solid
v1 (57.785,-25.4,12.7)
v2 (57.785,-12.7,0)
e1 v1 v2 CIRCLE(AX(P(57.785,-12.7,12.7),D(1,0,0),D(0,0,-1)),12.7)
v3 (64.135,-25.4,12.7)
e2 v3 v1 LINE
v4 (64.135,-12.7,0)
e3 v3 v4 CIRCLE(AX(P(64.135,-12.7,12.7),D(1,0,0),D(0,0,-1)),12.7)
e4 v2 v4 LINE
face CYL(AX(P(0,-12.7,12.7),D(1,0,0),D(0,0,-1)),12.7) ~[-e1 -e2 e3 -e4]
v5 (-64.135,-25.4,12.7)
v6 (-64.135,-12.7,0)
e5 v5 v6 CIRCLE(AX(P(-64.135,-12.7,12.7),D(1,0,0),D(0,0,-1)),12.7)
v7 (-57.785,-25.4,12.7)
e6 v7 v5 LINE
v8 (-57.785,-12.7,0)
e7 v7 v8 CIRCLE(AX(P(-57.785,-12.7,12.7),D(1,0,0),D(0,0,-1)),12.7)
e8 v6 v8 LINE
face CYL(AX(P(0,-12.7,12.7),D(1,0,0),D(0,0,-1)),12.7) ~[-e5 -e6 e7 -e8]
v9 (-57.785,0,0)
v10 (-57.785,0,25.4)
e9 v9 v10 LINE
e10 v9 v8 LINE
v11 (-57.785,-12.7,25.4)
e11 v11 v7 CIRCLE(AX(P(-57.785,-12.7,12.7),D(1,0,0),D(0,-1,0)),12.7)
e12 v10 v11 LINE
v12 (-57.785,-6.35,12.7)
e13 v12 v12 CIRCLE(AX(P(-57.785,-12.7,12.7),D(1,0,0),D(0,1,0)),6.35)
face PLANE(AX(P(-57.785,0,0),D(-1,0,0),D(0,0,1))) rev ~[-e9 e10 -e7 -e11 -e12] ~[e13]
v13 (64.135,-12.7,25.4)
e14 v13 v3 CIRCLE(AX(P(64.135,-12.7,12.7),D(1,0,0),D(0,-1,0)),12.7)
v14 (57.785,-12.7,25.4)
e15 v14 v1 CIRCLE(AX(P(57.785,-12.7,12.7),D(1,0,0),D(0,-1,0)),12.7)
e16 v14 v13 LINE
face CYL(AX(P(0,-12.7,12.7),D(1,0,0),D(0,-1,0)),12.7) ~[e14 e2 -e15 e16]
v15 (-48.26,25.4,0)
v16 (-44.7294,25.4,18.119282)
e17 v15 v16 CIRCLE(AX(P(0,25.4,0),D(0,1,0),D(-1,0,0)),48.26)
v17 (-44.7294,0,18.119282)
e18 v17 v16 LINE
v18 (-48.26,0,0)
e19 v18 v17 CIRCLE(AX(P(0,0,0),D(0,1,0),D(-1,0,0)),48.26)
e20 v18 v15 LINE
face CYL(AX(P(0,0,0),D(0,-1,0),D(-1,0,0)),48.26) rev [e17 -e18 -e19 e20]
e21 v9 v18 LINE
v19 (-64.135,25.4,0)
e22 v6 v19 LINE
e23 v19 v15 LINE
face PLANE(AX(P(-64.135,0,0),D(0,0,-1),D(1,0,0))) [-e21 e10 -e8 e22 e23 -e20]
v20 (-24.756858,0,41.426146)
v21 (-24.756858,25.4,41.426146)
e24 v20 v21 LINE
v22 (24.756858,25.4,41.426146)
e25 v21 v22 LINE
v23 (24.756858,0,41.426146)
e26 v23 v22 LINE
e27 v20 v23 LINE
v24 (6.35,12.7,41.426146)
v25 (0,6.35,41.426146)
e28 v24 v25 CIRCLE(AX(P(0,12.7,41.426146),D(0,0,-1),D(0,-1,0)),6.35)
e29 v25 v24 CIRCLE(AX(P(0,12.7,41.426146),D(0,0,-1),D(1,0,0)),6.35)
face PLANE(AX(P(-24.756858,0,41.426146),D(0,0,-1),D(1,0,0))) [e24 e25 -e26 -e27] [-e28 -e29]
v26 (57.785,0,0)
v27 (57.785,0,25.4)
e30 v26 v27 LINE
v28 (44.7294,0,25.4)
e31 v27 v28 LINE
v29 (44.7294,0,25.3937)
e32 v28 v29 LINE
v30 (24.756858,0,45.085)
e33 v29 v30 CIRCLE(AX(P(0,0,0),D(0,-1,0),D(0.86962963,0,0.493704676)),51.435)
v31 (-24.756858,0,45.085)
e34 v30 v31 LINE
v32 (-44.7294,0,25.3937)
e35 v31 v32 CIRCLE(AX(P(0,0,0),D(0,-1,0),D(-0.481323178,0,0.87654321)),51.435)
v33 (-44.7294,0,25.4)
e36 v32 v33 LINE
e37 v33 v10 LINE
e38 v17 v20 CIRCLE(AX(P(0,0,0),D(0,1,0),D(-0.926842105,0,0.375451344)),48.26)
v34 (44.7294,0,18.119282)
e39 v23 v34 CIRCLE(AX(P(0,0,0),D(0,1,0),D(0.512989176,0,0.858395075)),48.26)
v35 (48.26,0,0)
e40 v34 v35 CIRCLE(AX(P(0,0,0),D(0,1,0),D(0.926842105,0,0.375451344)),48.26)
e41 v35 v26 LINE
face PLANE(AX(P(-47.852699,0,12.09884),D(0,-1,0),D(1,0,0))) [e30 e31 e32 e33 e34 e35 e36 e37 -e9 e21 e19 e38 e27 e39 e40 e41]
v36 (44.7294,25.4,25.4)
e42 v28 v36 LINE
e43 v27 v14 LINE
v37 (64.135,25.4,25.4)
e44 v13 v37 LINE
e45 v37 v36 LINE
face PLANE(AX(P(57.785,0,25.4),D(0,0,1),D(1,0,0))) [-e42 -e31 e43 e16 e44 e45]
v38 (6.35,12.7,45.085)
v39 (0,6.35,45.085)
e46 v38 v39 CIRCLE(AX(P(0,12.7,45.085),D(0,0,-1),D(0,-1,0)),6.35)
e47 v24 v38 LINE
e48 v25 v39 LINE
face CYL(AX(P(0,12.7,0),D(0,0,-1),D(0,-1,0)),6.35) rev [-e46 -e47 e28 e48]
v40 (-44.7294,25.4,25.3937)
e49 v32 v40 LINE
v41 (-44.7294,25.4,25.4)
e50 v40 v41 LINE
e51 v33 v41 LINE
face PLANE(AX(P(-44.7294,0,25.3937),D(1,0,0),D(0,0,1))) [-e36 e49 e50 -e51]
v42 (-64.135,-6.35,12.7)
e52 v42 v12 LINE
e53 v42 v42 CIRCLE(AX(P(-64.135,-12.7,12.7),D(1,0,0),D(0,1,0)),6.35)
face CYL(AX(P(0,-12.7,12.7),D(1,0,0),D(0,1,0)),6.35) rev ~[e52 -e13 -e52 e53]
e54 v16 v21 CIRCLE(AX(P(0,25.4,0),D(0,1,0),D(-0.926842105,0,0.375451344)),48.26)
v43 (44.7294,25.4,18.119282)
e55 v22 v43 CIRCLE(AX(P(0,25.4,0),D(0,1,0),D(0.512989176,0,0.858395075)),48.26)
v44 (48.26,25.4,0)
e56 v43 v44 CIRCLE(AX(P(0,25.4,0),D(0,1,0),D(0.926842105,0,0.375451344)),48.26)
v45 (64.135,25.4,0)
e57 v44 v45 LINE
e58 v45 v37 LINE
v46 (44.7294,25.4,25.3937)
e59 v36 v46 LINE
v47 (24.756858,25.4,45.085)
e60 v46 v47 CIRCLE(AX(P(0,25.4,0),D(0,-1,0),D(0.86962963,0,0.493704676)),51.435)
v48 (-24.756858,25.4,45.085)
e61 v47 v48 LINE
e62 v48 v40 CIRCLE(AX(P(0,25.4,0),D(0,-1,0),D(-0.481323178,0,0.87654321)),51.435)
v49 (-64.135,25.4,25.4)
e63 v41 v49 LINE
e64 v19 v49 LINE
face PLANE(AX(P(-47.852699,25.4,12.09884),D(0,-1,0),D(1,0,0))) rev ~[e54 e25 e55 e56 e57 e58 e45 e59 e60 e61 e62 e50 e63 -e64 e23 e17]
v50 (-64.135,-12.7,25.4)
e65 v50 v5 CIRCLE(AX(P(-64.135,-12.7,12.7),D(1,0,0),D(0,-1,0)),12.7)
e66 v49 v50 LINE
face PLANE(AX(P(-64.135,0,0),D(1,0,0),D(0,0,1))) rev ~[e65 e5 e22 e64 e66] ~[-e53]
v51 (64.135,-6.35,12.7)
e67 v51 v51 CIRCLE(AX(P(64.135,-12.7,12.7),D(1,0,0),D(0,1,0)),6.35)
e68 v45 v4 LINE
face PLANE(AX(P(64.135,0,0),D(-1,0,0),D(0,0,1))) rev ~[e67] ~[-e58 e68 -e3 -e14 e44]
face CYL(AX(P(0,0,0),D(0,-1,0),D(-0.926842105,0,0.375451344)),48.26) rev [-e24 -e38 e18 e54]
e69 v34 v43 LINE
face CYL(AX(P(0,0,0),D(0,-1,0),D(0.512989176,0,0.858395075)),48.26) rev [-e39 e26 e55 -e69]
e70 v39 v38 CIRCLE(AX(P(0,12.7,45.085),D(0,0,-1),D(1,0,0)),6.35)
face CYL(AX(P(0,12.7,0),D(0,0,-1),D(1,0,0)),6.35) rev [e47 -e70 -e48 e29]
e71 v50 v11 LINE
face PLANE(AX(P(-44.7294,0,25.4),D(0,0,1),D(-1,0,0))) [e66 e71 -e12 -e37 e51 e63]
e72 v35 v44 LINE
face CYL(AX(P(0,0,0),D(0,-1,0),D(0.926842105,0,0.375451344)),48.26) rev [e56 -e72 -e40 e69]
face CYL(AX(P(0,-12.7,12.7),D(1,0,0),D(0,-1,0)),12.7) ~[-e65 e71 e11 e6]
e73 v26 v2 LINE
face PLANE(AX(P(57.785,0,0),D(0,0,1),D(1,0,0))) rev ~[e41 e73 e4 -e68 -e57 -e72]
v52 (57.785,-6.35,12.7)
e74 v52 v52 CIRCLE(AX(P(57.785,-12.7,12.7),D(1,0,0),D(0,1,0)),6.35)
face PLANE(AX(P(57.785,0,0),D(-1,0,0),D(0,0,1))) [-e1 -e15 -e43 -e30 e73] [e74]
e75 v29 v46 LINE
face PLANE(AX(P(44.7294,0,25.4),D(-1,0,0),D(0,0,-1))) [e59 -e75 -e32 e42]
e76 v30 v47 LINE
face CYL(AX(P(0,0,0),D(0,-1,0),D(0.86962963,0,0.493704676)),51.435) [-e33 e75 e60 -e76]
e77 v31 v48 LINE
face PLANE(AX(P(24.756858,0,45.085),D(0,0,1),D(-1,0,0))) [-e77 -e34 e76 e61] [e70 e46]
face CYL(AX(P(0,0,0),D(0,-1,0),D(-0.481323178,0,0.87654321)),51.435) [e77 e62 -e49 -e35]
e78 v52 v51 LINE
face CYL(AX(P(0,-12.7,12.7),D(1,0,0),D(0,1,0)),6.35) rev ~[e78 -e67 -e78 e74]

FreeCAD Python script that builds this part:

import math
import FreeCAD as App
import Part
import Sketcher
from FreeCAD import Vector
Q = App.Units.Quantity


def add_polygon(sketch, points):
    """Adds a closed chain of lines whose ends are joined by coincident constraints."""
    first, n = sketch.GeometryCount, len(points)
    for a, b in zip(points, points[1:] + points[:1]):
        sketch.addGeometry(Part.LineSegment(App.Vector(*a, 0), App.Vector(*b, 0)), False)
    for i in range(n):
        sketch.addConstraint(Sketcher.Constraint("Coincident", first + i, 2, first + (i + 1) % n, 1))

doc = App.newDocument("Part")
params = doc.addObject("Spreadsheet::Sheet", "Params")
for row, (alias, value) in enumerate([
    ("sketch1_radius", "1.9 in"),
    ("sketch1_height", "1 in"),
    ("sketch1_radius2", "2.025 in"),
    ("sketch1_width", "0.764 in"),
    ("sketch1_width2", "0.625 in"),
    ("pad1_length", "1 in"),
    ("sketch2_height", "1 in"),
    ("sketch2_width", "0.25 in"),
    ("pad2_length", "1 in"),
    ("sketch3_diameter", "0.5 in"),
    ("pad3_length", "6 in"),
    ("sketch4_radius", "0.5 in"),
    ("pad4_length", "6 in"),
    ("sketch5_radius", "0.5 in"),
    ("pad5_length", "6 in"),
    ("sketch6_radius", "0.25 in"),
    ("pad6_length", "3 in"),
], start=1):
    params.set(f"A{row}", alias)
    params.set(f"B{row}", "=" + value)
    params.setAlias(f"B{row}", alias)

body = doc.addObject("PartDesign::Body", "Body")

sketch1 = doc.addObject("Sketcher::SketchObject", "Sketch")
body.addObject(sketch1)
sketch1.AttachmentSupport = (doc.XZ_Plane, [""])
sketch1.MapMode = "FlatFace"
sketch1.addGeometry([
    Part.LineSegment(Vector(-44.729, 25.394, 0), Vector(-44.729, 25.4, 0)),
    Part.LineSegment(Vector(-44.729, 25.4, 0), Vector(-64.135, 25.4, 0)),
    Part.LineSegment(Vector(-64.135, 25.4, 0), Vector(-64.135, 0, 0)),
    Part.LineSegment(Vector(-64.135, 0, 0), Vector(-48.26, 0, 0)),
    Part.ArcOfCircle(Part.Circle(Vector(0, 0, 0), Vector(0, 0, 1), 48.26), math.radians(158), math.radians(180)),
    Part.ArcOfCircle(Part.Circle(Vector(0, 0, 0), Vector(0, 0, 1), 48.26), math.radians(121), math.radians(158)),
    Part.LineSegment(Vector(-24.757, 41.426, 0), Vector(24.757, 41.426, 0)),
    Part.ArcOfCircle(Part.Circle(Vector(0, 0, 0), Vector(0, 0, 1), 48.26), math.radians(22), math.radians(59)),
    Part.ArcOfCircle(Part.Circle(Vector(0, 0, 0), Vector(0, 0, 1), 48.26), math.radians(0), math.radians(22)),
    Part.LineSegment(Vector(48.26, 0, 0), Vector(64.135, 0, 0)),
    Part.LineSegment(Vector(64.135, 0, 0), Vector(64.135, 25.4, 0)),
    Part.LineSegment(Vector(64.135, 25.4, 0), Vector(44.729, 25.4, 0)),
    Part.LineSegment(Vector(44.729, 25.4, 0), Vector(44.729, 25.394, 0)),
    Part.ArcOfCircle(Part.Circle(Vector(0, 0, 0), Vector(0, 0, 1), 51.435), math.radians(30), math.radians(61)),
    Part.LineSegment(Vector(24.757, 45.085, 0), Vector(-24.757, 45.085, 0)),
    Part.ArcOfCircle(Part.Circle(Vector(0, 0, 0), Vector(0, 0, 1), 51.435), math.radians(119), math.radians(150)),
], False)
sketch1.addConstraint([
    Sketcher.Constraint("Coincident", 0, 2, 1, 1),
    Sketcher.Constraint("Coincident", 1, 2, 2, 1),
    Sketcher.Constraint("Coincident", 2, 2, 3, 1),
    Sketcher.Constraint("Coincident", 3, 2, 4, 2),
    Sketcher.Constraint("Tangent", 4, 1, 5, 2),
    Sketcher.Constraint("Coincident", 5, 1, 6, 1),
    Sketcher.Constraint("Coincident", 6, 2, 7, 2),
    Sketcher.Constraint("Tangent", 7, 1, 8, 2),
    Sketcher.Constraint("Coincident", 8, 1, 9, 1),
    Sketcher.Constraint("Coincident", 9, 2, 10, 1),
    Sketcher.Constraint("Coincident", 10, 2, 11, 1),
    Sketcher.Constraint("Coincident", 11, 2, 12, 1),
    Sketcher.Constraint("Coincident", 12, 2, 13, 1),
    Sketcher.Constraint("Coincident", 13, 2, 14, 1),
    Sketcher.Constraint("Coincident", 14, 2, 15, 1),
    Sketcher.Constraint("Coincident", 15, 2, 0, 1),
    Sketcher.Constraint("Vertical", 0),
    Sketcher.Constraint("Horizontal", 1),
    Sketcher.Constraint("Vertical", 2),
    Sketcher.Constraint("Horizontal", 3),
    Sketcher.Constraint("Horizontal", 6),
    Sketcher.Constraint("Horizontal", 9),
    Sketcher.Constraint("Vertical", 10),
    Sketcher.Constraint("Horizontal", 11),
    Sketcher.Constraint("Vertical", 12),
    Sketcher.Constraint("Horizontal", 14),
    Sketcher.Constraint("Coincident", 4, 3, -1, 1),
    Sketcher.Constraint("Coincident", 7, 3, -1, 1),
    Sketcher.Constraint("Coincident", 13, 3, -1, 1),
    Sketcher.Constraint("Coincident", 15, 3, -1, 1),
    Sketcher.Constraint("Equal", 4, 5),
    Sketcher.Constraint("Equal", 5, 7),
    Sketcher.Constraint("Equal", 7, 8),
    Sketcher.Constraint("Equal", 13, 15),
    Sketcher.Constraint("Symmetric", 2, 2, 9, 2, -1, 1),
    Sketcher.Constraint("Symmetric", 0, 2, 11, 2, -2),
    Sketcher.Constraint("PointOnObject", 2, 2, -1),
    Sketcher.Constraint("Horizontal", 4, 1, 7, 1),
    Sketcher.Constraint("Vertical", 0, 2, 4, 1),
    Sketcher.Constraint("Vertical", 6, 2, 13, 2),
    Sketcher.Constraint("Radius", 4, Q("1.9 in")),
    Sketcher.Constraint("DistanceY", 2, 2, 2, 1, Q("1 in")),
    Sketcher.Constraint("Radius", 13, Q("2.025 in")),
    Sketcher.Constraint("DistanceX", 1, 2, 1, 1, Q("0.764 in")),
    Sketcher.Constraint("DistanceX", 3, 1, 3, 2, Q("0.625 in")),
    Sketcher.Constraint("DistanceY", -1, 1, 13, 2, Q("1.775 in")),
])
sketch1.setExpression("Constraints[40]", "Params.sketch1_radius")
sketch1.setExpression("Constraints[41]", "Params.sketch1_height")
sketch1.setExpression("Constraints[42]", "Params.sketch1_radius2")
sketch1.setExpression("Constraints[43]", "Params.sketch1_width")
sketch1.setExpression("Constraints[44]", "Params.sketch1_width2")
pad1 = doc.addObject("PartDesign::Pad", "Pad")
body.addObject(pad1)
pad1.Profile = sketch1
pad1.setExpression("Length", "Params.pad1_length")
pad1.Reversed = True

sketch2 = doc.addObject("Sketcher::SketchObject", "Sketch001")
body.addObject(sketch2)
sketch2.AttachmentSupport = (doc.XZ_Plane, [""])
sketch2.MapMode = "FlatFace"
add_polygon(sketch2, [(58, 25), (58, 0), (64, 0), (64, 25)])
add_polygon(sketch2, [(-64, 25), (-64, 0), (-58, 0), (-58, 25)])
sketch2.addConstraint([
    Sketcher.Constraint("Vertical", 0),
    Sketcher.Constraint("Horizontal", 1),
    Sketcher.Constraint("Vertical", 2),
    Sketcher.Constraint("Horizontal", 3),
    Sketcher.Constraint("Vertical", 4),
    Sketcher.Constraint("Horizontal", 5),
    Sketcher.Constraint("Vertical", 6),
    Sketcher.Constraint("Horizontal", 7),
    Sketcher.Constraint("Symmetric", 1, 2, 4, 2, -1, 1),
    Sketcher.Constraint("Symmetric", 0, 2, 5, 2, -2),
    Sketcher.Constraint("Horizontal", 3, 2, 6, 2),
    Sketcher.Constraint("DistanceY", 0, 2, 0, 1, Q("1 in")),
    Sketcher.Constraint("DistanceX", 1, 1, 1, 2, Q("0.25 in")),
    Sketcher.Constraint("DistanceX", 4, 2, 0, 2, Q("4.8 in")),
])
sketch2.setExpression("Constraints[19]", "Params.sketch2_height")
sketch2.setExpression("Constraints[20]", "Params.sketch2_width")
pad2 = doc.addObject("PartDesign::Pad", "Pad001")
body.addObject(pad2)
pad2.Profile = sketch2
pad2.setExpression("Length", "Params.pad2_length")
body2 = doc.addObject("PartDesign::Body", "Body001")

sketch3 = doc.addObject("Sketcher::SketchObject", "Sketch002")
body2.addObject(sketch3)
sketch3.AttachmentSupport = (doc.getObject("YZ_Plane001"), [""])
sketch3.MapMode = "FlatFace"
sketch3.addGeometry(Part.Circle(Vector(-13, 13, 0), Vector(0, 0, 1), 6), False)
sketch3.addConstraint([
    Sketcher.Constraint("Diameter", 0, Q("0.5 in")),
    Sketcher.Constraint("DistanceX", 0, 3, -1, 1, Q("0.5 in")),
    Sketcher.Constraint("DistanceY", -1, 1, 0, 3, Q("0.5 in")),
])
sketch3.setExpression("Constraints[0]", "Params.sketch3_diameter")
pad3 = doc.addObject("PartDesign::Pad", "Pad002")
body2.addObject(pad3)
pad3.Profile = sketch3
pad3.setExpression("Length", "Params.pad3_length")
pad3.Midplane = True
body3 = doc.addObject("PartDesign::Body", "Body002")

sketch4 = doc.addObject("Sketcher::SketchObject", "Sketch003")
body3.addObject(sketch4)
sketch4.AttachmentSupport = (doc.getObject("YZ_Plane002"), [""])
sketch4.MapMode = "FlatFace"
sketch4.addGeometry([
    Part.ArcOfCircle(Part.Circle(Vector(-13, 13, 0), Vector(0, 0, 1), 13), math.radians(90), math.radians(180)),
    Part.LineSegment(Vector(-13, 25, 0), Vector(-25, 25, 0)),
    Part.LineSegment(Vector(-25, 25, 0), Vector(-25, 13, 0)),
], False)
sketch4.addConstraint([
    Sketcher.Constraint("Tangent", 0, 1, 1, 1),
    Sketcher.Constraint("Coincident", 1, 2, 2, 1),
    Sketcher.Constraint("Tangent", 2, 2, 0, 2),
    Sketcher.Constraint("Horizontal", 1),
    Sketcher.Constraint("Vertical", 2),
    Sketcher.Constraint("Radius", 0, Q("0.5 in")),
    Sketcher.Constraint("DistanceY", -1, 1, 0, 1, Q("1 in")),
    Sketcher.Constraint("DistanceX", 1, 2, -1, 1, Q("1 in")),
])
sketch4.setExpression("Constraints[5]", "Params.sketch4_radius")
pad4 = doc.addObject("PartDesign::Pad", "Pad003")
body3.addObject(pad4)
pad4.Profile = sketch4
pad4.setExpression("Length", "Params.pad4_length")
pad4.Midplane = True
body4 = doc.addObject("PartDesign::Body", "Body003")

sketch5 = doc.addObject("Sketcher::SketchObject", "Sketch004")
body4.addObject(sketch5)
sketch5.AttachmentSupport = (doc.getObject("YZ_Plane003"), [""])
sketch5.MapMode = "FlatFace"
sketch5.addGeometry([
    Part.LineSegment(Vector(-25, 0, 0), Vector(-13, 0, 0)),
    Part.ArcOfCircle(Part.Circle(Vector(-13, 13, 0), Vector(0, 0, 1), 13), math.radians(180), math.radians(270)),
    Part.LineSegment(Vector(-25, 13, 0), Vector(-25, 0, 0)),
], False)
sketch5.addConstraint([
    Sketcher.Constraint("Tangent", 0, 2, 1, 2),
    Sketcher.Constraint("Tangent", 1, 1, 2, 1),
    Sketcher.Constraint("Coincident", 2, 2, 0, 1),
    Sketcher.Constraint("Horizontal", 0),
    Sketcher.Constraint("Vertical", 2),
    Sketcher.Constraint("PointOnObject", 0, 2, -1),
    Sketcher.Constraint("Radius", 1, Q("0.5 in")),
    Sketcher.Constraint("DistanceX", 1, 1, -1, 1, Q("1 in")),
])
sketch5.setExpression("Constraints[6]", "Params.sketch5_radius")
pad5 = doc.addObject("PartDesign::Pad", "Pad004")
body4.addObject(pad5)
pad5.Profile = sketch5
pad5.setExpression("Length", "Params.pad5_length")
pad5.Midplane = True
doc.recompute()

boolean = doc.addObject("PartDesign::Boolean", "Boolean")
body.addObject(boolean)
boolean.Type = "Cut"
boolean.addObjects([body3])
doc.recompute()

boolean2 = doc.addObject("PartDesign::Boolean", "Boolean001")
body.addObject(boolean2)
boolean2.Type = "Cut"
boolean2.addObjects([body2])
doc.recompute()

boolean3 = doc.addObject("PartDesign::Boolean", "Boolean002")
body.addObject(boolean3)
boolean3.Type = "Cut"
boolean3.addObjects([body4])
body5 = doc.addObject("PartDesign::Body", "Body004")

sketch6 = doc.addObject("Sketcher::SketchObject", "Sketch005")
body5.addObject(sketch6)
sketch6.AttachmentSupport = (doc.getObject("XY_Plane004"), [""])
sketch6.MapMode = "FlatFace"
sketch6.addGeometry([
    Part.ArcOfCircle(Part.Circle(Vector(0, 13, 0), Vector(0, 0, 1), 6), math.radians(-90), math.radians(0)),
    Part.ArcOfCircle(Part.Circle(Vector(0, 13, 0), Vector(0, 0, 1), 6), math.radians(0), math.radians(270)),
], False)
sketch6.addConstraint([
    Sketcher.Constraint("Tangent", 0, 1, 1, 2),
    Sketcher.Constraint("Coincident", 1, 1, 0, 2),
    Sketcher.Constraint("PointOnObject", 0, 3, -2),
    Sketcher.Constraint("PointOnObject", 0, 1, -2),
    Sketcher.Constraint("Horizontal", 0, 3, 1, 1),
    Sketcher.Constraint("Radius", 0, Q("0.25 in")),
    Sketcher.Constraint("DistanceY", -1, 1, 0, 3, Q("0.5 in")),
])
sketch6.setExpression("Constraints[5]", "Params.sketch6_radius")
pad6 = doc.addObject("PartDesign::Pad", "Pad005")
body5.addObject(pad6)
pad6.Profile = sketch6
pad6.setExpression("Length", "Params.pad6_length")
doc.recompute()

boolean4 = doc.addObject("PartDesign::Boolean", "Boolean003")
body.addObject(boolean4)
boolean4.Type = "Cut"
boolean4.addObjects([body5])

doc.recompute()
